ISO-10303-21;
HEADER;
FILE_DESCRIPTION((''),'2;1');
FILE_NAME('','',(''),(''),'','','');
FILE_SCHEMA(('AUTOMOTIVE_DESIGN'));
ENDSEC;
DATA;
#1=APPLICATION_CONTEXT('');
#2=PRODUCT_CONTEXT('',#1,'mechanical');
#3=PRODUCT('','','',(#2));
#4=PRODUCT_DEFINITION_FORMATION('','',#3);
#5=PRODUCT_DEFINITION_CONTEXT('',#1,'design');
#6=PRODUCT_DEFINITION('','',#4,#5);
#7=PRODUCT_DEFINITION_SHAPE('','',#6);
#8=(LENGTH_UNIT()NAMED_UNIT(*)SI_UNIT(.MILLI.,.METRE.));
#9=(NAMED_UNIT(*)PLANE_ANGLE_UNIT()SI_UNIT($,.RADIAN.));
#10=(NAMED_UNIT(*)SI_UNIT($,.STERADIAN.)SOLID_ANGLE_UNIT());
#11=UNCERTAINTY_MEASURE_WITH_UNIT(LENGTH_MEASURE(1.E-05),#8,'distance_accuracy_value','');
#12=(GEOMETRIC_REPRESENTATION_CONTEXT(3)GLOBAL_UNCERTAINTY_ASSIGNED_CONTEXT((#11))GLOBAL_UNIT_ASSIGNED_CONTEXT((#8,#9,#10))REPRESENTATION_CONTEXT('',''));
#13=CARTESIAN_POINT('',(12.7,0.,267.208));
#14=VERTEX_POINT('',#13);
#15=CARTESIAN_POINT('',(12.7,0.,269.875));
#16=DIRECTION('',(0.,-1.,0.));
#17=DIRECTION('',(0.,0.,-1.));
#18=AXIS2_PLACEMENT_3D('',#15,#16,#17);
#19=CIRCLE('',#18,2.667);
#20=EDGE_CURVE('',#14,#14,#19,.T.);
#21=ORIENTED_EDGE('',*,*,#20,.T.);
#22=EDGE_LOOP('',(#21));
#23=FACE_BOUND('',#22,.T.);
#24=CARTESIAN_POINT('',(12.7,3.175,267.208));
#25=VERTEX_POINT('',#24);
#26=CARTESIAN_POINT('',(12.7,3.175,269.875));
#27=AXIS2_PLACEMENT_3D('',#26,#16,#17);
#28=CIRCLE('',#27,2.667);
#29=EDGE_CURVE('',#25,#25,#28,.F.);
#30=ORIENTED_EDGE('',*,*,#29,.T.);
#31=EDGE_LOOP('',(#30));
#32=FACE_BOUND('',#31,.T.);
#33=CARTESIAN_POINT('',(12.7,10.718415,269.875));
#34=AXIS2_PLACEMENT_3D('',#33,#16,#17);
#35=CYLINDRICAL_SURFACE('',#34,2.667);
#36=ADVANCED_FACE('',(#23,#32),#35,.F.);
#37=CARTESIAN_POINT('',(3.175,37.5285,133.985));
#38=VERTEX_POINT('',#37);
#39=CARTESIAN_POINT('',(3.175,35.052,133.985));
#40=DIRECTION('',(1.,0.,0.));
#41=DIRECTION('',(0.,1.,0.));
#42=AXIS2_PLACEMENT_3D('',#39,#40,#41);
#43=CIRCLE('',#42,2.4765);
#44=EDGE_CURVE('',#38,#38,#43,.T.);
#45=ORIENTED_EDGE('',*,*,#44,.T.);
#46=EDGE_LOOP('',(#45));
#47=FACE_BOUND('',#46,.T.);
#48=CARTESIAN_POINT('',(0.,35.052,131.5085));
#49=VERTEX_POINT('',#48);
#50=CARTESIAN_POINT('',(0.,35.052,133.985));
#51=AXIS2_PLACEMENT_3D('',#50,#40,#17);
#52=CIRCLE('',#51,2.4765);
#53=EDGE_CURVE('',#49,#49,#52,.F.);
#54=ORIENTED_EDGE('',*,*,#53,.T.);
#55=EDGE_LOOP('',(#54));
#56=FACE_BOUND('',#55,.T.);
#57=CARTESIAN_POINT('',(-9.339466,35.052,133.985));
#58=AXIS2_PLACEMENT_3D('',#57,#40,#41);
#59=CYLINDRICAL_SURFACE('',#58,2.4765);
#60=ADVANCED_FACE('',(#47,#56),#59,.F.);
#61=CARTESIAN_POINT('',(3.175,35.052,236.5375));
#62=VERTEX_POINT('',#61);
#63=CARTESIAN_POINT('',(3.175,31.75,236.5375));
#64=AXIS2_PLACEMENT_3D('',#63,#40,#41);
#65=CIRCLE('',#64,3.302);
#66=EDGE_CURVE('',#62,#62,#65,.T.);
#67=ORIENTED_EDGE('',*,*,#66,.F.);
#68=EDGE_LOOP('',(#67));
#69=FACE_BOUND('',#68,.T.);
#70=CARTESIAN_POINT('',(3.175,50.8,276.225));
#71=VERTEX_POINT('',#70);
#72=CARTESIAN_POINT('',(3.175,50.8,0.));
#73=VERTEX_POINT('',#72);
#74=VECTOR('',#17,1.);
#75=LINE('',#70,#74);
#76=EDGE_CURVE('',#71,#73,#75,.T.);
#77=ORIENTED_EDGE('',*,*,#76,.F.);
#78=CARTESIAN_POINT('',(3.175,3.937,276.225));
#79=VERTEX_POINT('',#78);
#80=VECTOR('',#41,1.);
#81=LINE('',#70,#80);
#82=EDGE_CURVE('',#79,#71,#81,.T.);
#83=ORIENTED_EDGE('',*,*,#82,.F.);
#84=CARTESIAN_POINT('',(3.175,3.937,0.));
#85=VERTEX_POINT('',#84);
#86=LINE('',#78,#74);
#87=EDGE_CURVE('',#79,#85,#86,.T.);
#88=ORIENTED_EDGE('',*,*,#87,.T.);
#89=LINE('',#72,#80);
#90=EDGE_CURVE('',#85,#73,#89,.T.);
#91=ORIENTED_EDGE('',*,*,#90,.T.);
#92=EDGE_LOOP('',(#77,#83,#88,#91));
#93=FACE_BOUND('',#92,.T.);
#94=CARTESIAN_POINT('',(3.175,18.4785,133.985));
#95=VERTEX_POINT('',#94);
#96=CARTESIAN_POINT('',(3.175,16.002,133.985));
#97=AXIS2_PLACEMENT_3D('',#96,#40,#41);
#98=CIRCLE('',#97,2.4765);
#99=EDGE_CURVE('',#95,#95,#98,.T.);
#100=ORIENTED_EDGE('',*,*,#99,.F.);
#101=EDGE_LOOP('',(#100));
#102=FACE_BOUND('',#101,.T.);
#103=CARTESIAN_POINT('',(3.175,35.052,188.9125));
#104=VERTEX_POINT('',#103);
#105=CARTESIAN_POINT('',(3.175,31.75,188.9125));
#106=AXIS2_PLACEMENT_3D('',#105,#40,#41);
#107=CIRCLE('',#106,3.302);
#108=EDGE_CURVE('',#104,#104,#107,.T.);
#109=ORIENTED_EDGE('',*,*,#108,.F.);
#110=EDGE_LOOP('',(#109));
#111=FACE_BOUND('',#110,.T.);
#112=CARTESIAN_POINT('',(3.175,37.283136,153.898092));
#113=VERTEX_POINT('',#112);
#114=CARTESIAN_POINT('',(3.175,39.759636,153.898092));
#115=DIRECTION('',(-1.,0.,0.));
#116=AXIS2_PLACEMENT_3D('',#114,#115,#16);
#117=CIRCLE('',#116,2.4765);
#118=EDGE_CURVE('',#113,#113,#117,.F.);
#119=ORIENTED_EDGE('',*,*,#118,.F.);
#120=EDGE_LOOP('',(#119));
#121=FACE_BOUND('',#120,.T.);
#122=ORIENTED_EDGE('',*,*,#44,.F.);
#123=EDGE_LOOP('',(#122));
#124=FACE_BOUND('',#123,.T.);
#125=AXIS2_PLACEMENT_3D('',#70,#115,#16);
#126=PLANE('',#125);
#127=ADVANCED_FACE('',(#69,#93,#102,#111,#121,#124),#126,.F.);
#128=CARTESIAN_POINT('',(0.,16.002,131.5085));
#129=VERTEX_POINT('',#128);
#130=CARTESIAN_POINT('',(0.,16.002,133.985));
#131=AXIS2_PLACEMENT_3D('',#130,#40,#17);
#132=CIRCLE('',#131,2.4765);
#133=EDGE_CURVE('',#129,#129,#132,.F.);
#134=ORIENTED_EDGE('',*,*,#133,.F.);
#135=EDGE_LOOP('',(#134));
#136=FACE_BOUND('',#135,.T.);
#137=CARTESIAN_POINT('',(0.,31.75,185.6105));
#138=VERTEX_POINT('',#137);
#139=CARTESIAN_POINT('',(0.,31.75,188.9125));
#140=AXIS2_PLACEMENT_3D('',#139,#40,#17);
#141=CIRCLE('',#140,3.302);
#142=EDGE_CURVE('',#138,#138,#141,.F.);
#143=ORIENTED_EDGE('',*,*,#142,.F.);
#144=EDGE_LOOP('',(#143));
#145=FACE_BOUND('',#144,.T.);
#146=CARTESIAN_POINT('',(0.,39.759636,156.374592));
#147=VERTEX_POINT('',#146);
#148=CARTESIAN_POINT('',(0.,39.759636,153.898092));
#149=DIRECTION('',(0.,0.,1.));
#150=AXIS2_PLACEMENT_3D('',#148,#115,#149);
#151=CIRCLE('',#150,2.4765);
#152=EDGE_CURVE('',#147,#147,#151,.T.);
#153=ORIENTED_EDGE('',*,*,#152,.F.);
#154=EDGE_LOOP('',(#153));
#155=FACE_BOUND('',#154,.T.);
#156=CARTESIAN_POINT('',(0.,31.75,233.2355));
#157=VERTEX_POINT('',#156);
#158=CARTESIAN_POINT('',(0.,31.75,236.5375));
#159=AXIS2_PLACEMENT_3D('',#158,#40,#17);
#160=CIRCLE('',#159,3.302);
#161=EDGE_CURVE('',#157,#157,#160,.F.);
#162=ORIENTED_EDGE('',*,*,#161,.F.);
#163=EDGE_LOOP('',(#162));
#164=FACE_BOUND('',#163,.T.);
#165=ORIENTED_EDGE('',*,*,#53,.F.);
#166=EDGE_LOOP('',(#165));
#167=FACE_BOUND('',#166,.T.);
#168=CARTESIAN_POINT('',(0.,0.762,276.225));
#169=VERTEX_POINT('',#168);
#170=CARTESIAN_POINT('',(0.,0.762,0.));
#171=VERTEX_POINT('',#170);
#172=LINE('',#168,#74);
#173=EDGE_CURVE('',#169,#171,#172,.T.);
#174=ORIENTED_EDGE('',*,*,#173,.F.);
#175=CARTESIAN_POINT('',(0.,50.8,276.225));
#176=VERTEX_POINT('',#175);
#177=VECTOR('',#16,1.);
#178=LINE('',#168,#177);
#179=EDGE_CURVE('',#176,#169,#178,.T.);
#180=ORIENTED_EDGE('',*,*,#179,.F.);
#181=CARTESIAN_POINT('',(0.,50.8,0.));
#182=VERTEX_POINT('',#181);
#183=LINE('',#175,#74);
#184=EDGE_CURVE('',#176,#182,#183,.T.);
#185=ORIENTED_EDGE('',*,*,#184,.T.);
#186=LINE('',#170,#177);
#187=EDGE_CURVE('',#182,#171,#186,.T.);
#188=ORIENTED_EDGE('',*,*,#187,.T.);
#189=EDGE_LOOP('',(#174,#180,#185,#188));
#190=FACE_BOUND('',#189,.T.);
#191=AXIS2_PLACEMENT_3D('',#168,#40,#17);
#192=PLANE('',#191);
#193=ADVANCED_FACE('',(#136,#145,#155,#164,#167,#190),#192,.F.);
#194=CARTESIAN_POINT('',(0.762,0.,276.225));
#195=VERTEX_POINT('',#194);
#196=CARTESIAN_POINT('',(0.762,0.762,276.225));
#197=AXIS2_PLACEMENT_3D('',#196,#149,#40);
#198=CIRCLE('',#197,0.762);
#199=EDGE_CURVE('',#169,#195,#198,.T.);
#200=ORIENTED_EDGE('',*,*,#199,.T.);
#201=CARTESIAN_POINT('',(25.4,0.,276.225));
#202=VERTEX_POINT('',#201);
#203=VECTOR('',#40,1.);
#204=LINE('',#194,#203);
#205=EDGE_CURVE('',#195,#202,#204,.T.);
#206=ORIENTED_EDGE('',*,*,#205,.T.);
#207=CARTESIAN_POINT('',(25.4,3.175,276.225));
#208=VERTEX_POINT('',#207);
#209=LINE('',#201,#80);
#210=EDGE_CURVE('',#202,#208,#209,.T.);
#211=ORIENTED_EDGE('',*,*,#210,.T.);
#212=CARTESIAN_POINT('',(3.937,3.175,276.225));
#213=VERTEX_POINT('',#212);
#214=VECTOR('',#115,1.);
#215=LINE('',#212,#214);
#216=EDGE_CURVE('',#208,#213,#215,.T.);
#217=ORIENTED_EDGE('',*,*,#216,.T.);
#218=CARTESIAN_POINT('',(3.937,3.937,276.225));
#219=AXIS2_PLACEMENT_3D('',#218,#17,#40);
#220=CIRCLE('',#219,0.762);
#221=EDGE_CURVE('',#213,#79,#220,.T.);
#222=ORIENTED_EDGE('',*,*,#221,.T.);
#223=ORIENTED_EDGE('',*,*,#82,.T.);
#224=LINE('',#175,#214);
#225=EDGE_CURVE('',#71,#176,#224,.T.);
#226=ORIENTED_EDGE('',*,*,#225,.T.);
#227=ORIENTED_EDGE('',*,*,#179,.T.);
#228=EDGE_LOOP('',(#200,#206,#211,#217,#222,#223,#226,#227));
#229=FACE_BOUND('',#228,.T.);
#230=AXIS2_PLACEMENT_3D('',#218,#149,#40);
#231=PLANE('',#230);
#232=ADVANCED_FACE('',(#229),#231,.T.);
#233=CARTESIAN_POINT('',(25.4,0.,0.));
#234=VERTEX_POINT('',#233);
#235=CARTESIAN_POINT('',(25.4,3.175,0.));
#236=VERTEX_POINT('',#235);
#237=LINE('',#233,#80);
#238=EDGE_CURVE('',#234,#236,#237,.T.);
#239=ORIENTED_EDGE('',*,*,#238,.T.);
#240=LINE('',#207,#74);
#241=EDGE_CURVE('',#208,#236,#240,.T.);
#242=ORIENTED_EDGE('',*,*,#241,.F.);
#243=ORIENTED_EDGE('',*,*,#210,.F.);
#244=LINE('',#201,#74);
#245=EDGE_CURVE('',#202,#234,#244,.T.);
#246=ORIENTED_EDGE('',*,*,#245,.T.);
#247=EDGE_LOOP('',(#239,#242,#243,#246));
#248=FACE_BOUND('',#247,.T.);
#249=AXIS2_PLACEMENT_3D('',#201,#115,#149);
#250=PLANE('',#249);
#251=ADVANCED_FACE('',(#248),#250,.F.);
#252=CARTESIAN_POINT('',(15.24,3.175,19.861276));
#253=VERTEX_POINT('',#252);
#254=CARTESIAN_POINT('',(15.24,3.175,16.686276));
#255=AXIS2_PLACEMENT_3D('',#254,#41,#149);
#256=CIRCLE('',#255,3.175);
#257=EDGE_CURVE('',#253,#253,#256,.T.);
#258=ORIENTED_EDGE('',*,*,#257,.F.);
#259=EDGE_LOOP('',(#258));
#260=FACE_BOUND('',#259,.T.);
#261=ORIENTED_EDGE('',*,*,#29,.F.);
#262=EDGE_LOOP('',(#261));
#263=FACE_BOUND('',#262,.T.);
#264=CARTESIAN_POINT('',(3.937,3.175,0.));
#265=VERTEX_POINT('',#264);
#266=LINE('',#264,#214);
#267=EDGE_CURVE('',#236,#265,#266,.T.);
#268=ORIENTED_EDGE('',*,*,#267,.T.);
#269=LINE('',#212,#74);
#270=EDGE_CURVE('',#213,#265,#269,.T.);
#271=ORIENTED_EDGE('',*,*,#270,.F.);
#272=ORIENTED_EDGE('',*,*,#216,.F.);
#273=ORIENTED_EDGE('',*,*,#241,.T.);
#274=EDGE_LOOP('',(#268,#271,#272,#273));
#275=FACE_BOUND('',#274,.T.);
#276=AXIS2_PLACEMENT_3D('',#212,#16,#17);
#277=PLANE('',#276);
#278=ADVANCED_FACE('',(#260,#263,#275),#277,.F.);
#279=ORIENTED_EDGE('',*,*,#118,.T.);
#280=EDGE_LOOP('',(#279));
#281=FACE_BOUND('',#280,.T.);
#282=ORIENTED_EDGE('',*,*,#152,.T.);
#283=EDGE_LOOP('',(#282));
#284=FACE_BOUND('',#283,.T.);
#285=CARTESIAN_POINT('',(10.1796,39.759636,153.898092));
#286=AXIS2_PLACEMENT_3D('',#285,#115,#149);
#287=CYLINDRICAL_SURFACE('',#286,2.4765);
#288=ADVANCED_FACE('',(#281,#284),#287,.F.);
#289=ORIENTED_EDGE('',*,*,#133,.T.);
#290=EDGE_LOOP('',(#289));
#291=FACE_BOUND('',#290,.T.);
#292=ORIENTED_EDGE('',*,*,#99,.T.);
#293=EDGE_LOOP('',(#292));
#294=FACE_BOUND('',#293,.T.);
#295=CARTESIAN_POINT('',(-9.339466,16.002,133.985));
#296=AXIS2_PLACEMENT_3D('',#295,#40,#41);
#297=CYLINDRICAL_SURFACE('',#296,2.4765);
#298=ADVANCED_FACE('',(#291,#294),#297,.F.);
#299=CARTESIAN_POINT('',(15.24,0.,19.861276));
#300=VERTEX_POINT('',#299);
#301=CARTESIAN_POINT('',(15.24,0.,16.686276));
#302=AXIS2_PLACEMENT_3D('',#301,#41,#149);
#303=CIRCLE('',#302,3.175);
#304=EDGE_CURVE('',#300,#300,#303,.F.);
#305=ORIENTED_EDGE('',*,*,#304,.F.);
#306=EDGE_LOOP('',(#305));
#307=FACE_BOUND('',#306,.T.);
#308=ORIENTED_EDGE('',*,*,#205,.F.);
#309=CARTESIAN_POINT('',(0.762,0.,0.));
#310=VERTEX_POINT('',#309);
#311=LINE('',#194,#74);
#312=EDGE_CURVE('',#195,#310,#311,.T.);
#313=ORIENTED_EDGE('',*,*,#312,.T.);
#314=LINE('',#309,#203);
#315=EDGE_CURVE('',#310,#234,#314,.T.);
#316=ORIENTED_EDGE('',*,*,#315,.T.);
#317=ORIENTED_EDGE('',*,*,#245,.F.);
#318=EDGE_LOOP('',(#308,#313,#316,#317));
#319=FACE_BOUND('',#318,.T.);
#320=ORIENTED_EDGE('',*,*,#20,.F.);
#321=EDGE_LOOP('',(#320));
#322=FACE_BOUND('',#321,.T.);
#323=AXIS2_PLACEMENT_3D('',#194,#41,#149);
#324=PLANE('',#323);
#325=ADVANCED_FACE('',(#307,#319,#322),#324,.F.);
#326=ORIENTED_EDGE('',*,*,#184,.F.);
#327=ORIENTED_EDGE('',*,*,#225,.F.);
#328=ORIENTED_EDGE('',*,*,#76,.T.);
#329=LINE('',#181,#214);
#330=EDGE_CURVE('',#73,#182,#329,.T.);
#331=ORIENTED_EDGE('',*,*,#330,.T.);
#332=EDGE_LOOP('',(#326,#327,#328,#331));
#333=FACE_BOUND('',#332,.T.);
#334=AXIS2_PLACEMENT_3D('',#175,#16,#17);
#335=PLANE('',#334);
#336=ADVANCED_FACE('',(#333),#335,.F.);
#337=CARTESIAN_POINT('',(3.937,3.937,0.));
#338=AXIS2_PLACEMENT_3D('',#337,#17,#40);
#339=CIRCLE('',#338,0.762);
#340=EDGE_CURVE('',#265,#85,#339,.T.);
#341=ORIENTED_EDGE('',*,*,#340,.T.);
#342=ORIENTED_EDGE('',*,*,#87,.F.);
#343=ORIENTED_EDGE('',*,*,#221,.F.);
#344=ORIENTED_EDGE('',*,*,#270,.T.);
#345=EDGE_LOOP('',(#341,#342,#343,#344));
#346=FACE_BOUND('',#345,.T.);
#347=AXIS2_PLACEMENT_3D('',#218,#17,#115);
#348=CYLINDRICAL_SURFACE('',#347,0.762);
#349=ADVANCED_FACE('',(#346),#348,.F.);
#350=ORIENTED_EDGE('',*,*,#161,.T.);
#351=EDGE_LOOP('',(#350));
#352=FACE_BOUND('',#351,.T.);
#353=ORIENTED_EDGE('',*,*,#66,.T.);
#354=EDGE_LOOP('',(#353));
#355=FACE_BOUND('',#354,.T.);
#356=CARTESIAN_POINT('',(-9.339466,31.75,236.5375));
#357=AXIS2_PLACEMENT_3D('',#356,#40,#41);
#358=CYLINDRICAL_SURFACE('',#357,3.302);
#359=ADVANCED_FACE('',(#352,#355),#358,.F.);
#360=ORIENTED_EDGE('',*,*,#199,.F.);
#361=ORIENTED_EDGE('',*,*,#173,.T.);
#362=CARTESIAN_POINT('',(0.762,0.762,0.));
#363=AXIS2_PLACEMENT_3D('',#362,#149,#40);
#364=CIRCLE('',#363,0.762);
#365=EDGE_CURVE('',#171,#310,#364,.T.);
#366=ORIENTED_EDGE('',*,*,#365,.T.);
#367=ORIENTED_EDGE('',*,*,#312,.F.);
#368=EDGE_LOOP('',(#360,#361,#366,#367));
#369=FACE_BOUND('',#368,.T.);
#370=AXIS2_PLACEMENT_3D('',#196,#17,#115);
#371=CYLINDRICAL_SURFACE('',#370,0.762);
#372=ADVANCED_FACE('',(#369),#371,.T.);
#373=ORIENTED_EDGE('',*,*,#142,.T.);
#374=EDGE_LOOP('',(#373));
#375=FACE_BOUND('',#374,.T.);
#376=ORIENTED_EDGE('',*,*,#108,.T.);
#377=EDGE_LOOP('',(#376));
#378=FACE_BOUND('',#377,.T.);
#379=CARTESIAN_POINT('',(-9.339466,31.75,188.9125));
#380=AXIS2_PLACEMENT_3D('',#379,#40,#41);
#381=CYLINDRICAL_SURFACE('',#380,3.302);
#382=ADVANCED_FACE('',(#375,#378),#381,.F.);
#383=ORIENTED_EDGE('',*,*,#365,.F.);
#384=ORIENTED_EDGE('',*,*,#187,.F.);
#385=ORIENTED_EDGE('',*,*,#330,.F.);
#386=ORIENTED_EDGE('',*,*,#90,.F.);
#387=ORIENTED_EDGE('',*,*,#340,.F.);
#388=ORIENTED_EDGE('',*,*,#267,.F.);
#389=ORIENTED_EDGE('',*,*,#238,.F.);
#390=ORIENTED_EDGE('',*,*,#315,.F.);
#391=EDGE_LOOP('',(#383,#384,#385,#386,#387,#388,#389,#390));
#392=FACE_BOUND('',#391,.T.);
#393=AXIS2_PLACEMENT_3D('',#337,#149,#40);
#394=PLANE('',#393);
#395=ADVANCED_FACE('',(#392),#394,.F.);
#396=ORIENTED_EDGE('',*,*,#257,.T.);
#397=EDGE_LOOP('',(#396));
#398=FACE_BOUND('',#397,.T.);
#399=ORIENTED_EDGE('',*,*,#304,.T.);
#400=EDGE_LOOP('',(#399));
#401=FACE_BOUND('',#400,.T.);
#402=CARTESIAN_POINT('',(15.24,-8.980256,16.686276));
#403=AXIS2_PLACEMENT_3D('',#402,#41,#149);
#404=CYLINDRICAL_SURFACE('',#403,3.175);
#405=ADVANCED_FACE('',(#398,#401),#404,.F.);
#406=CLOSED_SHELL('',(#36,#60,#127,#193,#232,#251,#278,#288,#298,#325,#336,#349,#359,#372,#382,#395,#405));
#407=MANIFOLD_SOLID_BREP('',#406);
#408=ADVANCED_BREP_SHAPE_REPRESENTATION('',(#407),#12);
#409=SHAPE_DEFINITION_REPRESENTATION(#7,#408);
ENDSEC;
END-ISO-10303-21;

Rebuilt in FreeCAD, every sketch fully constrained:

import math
import FreeCAD as App
import Part
import Sketcher
Q = App.Units.Quantity

doc = App.newDocument("Part")
body = doc.addObject("PartDesign::Body", "Body")

sketch1 = body.newObject("Sketcher::SketchObject", "Sketch")
sketch1.AttachmentSupport = (doc.getObject("XY_Plane"), [""])
sketch1.MapMode = "FlatFace"
sketch1.addGeometry([
    Part.LineSegment(App.Vector(3.2, 3.9, 0), App.Vector(3.2, 50.8, 0)),
    Part.LineSegment(App.Vector(3.2, 50.8, 0), App.Vector(0, 50.8, 0)),
    Part.LineSegment(App.Vector(0, 50.8, 0), App.Vector(0, 0.8, 0)),
    Part.ArcOfCircle(Part.Circle(App.Vector(0.8, 0.8, 0), App.Vector(0, 0, 1), 0.8), math.radians(-180), math.radians(-90)),
    Part.LineSegment(App.Vector(0.8, 0, 0), App.Vector(25.4, 0, 0)),
    Part.LineSegment(App.Vector(25.4, 0, 0), App.Vector(25.4, 3.2, 0)),
    Part.LineSegment(App.Vector(25.4, 3.2, 0), App.Vector(3.9, 3.2, 0)),
    Part.ArcOfCircle(Part.Circle(App.Vector(3.9, 3.9, 0), App.Vector(0, 0, 1), 0.8), math.radians(-180), math.radians(-90)),
], False)
sketch1.addConstraint([
    Sketcher.Constraint("Coincident", 0, 2, 1, 1),
    Sketcher.Constraint("Coincident", 1, 2, 2, 1),
    Sketcher.Constraint("Tangent", 2, 2, 3, 1),
    Sketcher.Constraint("Tangent", 3, 2, 4, 1),
    Sketcher.Constraint("Coincident", 4, 2, 5, 1),
    Sketcher.Constraint("Coincident", 5, 2, 6, 1),
    Sketcher.Constraint("Tangent", 6, 2, 7, 2),
    Sketcher.Constraint("Tangent", 7, 1, 0, 1),
    Sketcher.Constraint("Vertical", 0),
    Sketcher.Constraint("Horizontal", 1),
    Sketcher.Constraint("Vertical", 2),
    Sketcher.Constraint("Horizontal", 4),
    Sketcher.Constraint("Vertical", 5),
    Sketcher.Constraint("Horizontal", 6),
    Sketcher.Constraint("Equal", 3, 7),
    Sketcher.Constraint("PointOnObject", 1, 2, -2),
    Sketcher.Constraint("PointOnObject", 3, 2, -1),
    Sketcher.Constraint("Equal", 1, 5),
    Sketcher.Constraint("Radius", 3, Q("0.03 in")),
    Sketcher.Constraint("DistanceY", -1, 1, 0, 2, Q("2 in")),
    Sketcher.Constraint("DistanceX", -1, 1, 4, 2, Q("1 in")),
    Sketcher.Constraint("DistanceX", 1, 2, 1, 1, Q("0.125 in")),
])
pad1 = body.newObject("PartDesign::Pad", "Pad")
pad1.Profile = sketch1
pad1.Length = Q("10.875 in")

sketch2 = body.newObject("Sketcher::SketchObject", "Sketch001")
sketch2.AttachmentSupport = (doc.getObject("XZ_Plane"), [""])
sketch2.MapMode = "FlatFace"
sketch2.addGeometry(Part.Circle(App.Vector(12.7, 269.9, 0), App.Vector(0, 0, 1), 2.7), False)
sketch2.addConstraint([
    Sketcher.Constraint("Diameter", 0, Q("0.21 in")),
    Sketcher.Constraint("DistanceX", -1, 1, 0, 3, Q("0.5 in")),
    Sketcher.Constraint("DistanceY", -1, 1, 0, 3, Q("10.625 in")),
])
pocket1 = body.newObject("PartDesign::Pocket", "Pocket")
pocket1.Profile = sketch2
pocket1.Length = Q("0.125 in")

sketch3 = body.newObject("Sketcher::SketchObject", "Sketch002")
sketch3.AttachmentSupport = (doc.getObject("YZ_Plane"), [""])
sketch3.MapMode = "FlatFace"
sketch3.AttachmentOffset = App.Placement(App.Vector(0, 0, 0.125 * 25.4), App.Rotation())
sketch3.addGeometry([
    Part.Circle(App.Vector(31.8, 188.9, 0), App.Vector(0, 0, 1), 3.3),
    Part.Circle(App.Vector(31.8, 236.5, 0), App.Vector(0, 0, 1), 3.3),
    Part.Circle(App.Vector(16, 134, 0), App.Vector(0, 0, 1), 2.5),
    Part.Circle(App.Vector(35.1, 134, 0), App.Vector(0, 0, 1), 2.5),
], False)
sketch3.addConstraint([
    Sketcher.Constraint("Equal", 0, 1),
    Sketcher.Constraint("Equal", 2, 3),
    Sketcher.Constraint("Horizontal", 2, 3, 3, 3),
    Sketcher.Constraint("Vertical", 0, 3, 1, 3),
    Sketcher.Constraint("Diameter", 0, Q("0.26 in")),
    Sketcher.Constraint("Diameter", 2, Q("0.195 in")),
    Sketcher.Constraint("DistanceX", -1, 1, 0, 3, Q("1.25 in")),
    Sketcher.Constraint("DistanceX", -1, 1, 2, 3, Q("0.63 in")),
    Sketcher.Constraint("DistanceX", -1, 1, 3, 3, Q("1.38 in")),
    Sketcher.Constraint("DistanceY", -1, 1, 0, 3, Q("7.4375 in")),
    Sketcher.Constraint("DistanceY", -1, 1, 1, 3, Q("9.3125 in")),
    Sketcher.Constraint("DistanceY", -1, 1, 2, 3, Q("5.275 in")),
])
pocket2 = body.newObject("PartDesign::Pocket", "Pocket001")
pocket2.Profile = sketch3
pocket2.Length = Q("0.125 in")

sketch4 = body.newObject("Sketcher::SketchObject", "Sketch003")
sketch4.AttachmentSupport = (doc.getObject("YZ_Plane"), [""])
sketch4.MapMode = "FlatFace"
sketch4.addGeometry(Part.Circle(App.Vector(39.8, 153.9, 0), App.Vector(0, 0, 1), 2.5), False)
sketch4.addConstraint([
    Sketcher.Constraint("Diameter", 0, Q("0.195 in")),
    Sketcher.Constraint("DistanceY", -1, 1, 0, 3, 153.898092),
    Sketcher.Constraint("DistanceX", -1, 1, 0, 3, 39.759636),
])
pocket3 = body.newObject("PartDesign::Pocket", "Pocket002")
pocket3.Profile = sketch4
pocket3.Length = Q("0.125 in")
pocket3.Reversed = True

sketch5 = body.newObject("Sketcher::SketchObject", "Sketch004")
sketch5.AttachmentSupport = (doc.getObject("XZ_Plane"), [""])
sketch5.MapMode = "FlatFace"
sketch5.AttachmentOffset = App.Placement(App.Vector(0, 0, -0.125 * 25.4), App.Rotation())
sketch5.addGeometry(Part.Circle(App.Vector(15.2, 16.7, 0), App.Vector(0, 0, 1), 3.2), False)
sketch5.addConstraint([
    Sketcher.Constraint("Diameter", 0, Q("0.25 in")),
    Sketcher.Constraint("DistanceX", -1, 1, 0, 3, Q("0.6 in")),
    Sketcher.Constraint("DistanceY", -1, 1, 0, 3, 16.686276),
])
pocket4 = body.newObject("PartDesign::Pocket", "Pocket003")
pocket4.Profile = sketch5
pocket4.Length = Q("0.125 in")
pocket4.Reversed = True

doc.recompute()
